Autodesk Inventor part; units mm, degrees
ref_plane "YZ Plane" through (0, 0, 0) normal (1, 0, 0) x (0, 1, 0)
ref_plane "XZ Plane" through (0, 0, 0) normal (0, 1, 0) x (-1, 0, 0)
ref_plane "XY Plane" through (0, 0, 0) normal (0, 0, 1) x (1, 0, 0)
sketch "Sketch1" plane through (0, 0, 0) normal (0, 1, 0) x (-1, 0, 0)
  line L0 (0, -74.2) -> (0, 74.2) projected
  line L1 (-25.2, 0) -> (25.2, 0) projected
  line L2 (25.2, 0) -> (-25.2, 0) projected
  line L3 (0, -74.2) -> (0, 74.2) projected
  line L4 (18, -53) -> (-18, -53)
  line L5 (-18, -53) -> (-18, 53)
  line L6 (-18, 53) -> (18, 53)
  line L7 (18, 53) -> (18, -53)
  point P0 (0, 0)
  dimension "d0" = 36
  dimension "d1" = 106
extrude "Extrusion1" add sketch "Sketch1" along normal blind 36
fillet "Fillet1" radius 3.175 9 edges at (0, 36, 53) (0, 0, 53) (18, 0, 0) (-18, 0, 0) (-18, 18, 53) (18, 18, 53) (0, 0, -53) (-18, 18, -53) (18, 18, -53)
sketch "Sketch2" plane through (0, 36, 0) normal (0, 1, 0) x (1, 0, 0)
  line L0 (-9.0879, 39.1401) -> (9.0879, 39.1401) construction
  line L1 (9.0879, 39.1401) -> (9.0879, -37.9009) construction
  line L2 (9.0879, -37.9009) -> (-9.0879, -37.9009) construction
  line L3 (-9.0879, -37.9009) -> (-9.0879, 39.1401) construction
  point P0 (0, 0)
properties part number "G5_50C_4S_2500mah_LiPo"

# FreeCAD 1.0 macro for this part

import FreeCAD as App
import Part
import Sketcher

V = App.Vector


def edges_at(feature, points):
    """Names of the edges that pass closest to the given points."""
    edges = feature.Shape.Edges
    near = lambda p: min(range(len(edges)), key=lambda i: edges[i].distToShape(Part.Vertex(*p))[0])
    return sorted({f"Edge{near(p) + 1}" for p in points})

doc = App.newDocument("Part")
body = doc.addObject("PartDesign::Body", "Body")

sketch1 = body.newObject("Sketcher::SketchObject", "Sketch")
sketch1.AttachmentSupport = (doc.getObject("XZ_Plane"), [""])
sketch1.MapMode = "FlatFace"
sketch1.addGeometry([
    Part.LineSegment(V(18, -53, 0), V(-18, -53, 0)),
    Part.LineSegment(V(-18, -53, 0), V(-18, 53, 0)),
    Part.LineSegment(V(-18, 53, 0), V(18, 53, 0)),
    Part.LineSegment(V(18, 53, 0), V(18, -53, 0)),
], False)
sketch1.addConstraint([
    Sketcher.Constraint("Coincident", 0, 2, 1, 1),
    Sketcher.Constraint("Coincident", 1, 2, 2, 1),
    Sketcher.Constraint("Coincident", 2, 2, 3, 1),
    Sketcher.Constraint("Coincident", 3, 2, 0, 1),
    Sketcher.Constraint("Horizontal", 0),
    Sketcher.Constraint("Vertical", 1),
    Sketcher.Constraint("Horizontal", 2),
    Sketcher.Constraint("Vertical", 3),
    Sketcher.Constraint("Symmetric", 0, 2, 2, 2, -1, 1),
    Sketcher.Constraint("DistanceX", 0, 2, 0, 1, 36.0),
    Sketcher.Constraint("DistanceY", 1, 1, 1, 2, 106.0),
])
pad1 = body.newObject("PartDesign::Pad", "Pad")
pad1.Profile = sketch1
pad1.Length = 36
pad1.Reversed = True
doc.recompute()

fillet = body.newObject("PartDesign::Fillet", "Fillet")
fillet.Base = (pad1, edges_at(pad1, [
    (0, 36, 53),
    (0, 0, 53),
    (18, 0, 0),
    (-18, 0, 0),
    (-18, 18, 53),
    (18, 18, 53),
    (0, 0, -53),
    (-18, 18, -53),
    (18, 18, -53),
]))
fillet.Radius = 3.175

doc.recompute()
